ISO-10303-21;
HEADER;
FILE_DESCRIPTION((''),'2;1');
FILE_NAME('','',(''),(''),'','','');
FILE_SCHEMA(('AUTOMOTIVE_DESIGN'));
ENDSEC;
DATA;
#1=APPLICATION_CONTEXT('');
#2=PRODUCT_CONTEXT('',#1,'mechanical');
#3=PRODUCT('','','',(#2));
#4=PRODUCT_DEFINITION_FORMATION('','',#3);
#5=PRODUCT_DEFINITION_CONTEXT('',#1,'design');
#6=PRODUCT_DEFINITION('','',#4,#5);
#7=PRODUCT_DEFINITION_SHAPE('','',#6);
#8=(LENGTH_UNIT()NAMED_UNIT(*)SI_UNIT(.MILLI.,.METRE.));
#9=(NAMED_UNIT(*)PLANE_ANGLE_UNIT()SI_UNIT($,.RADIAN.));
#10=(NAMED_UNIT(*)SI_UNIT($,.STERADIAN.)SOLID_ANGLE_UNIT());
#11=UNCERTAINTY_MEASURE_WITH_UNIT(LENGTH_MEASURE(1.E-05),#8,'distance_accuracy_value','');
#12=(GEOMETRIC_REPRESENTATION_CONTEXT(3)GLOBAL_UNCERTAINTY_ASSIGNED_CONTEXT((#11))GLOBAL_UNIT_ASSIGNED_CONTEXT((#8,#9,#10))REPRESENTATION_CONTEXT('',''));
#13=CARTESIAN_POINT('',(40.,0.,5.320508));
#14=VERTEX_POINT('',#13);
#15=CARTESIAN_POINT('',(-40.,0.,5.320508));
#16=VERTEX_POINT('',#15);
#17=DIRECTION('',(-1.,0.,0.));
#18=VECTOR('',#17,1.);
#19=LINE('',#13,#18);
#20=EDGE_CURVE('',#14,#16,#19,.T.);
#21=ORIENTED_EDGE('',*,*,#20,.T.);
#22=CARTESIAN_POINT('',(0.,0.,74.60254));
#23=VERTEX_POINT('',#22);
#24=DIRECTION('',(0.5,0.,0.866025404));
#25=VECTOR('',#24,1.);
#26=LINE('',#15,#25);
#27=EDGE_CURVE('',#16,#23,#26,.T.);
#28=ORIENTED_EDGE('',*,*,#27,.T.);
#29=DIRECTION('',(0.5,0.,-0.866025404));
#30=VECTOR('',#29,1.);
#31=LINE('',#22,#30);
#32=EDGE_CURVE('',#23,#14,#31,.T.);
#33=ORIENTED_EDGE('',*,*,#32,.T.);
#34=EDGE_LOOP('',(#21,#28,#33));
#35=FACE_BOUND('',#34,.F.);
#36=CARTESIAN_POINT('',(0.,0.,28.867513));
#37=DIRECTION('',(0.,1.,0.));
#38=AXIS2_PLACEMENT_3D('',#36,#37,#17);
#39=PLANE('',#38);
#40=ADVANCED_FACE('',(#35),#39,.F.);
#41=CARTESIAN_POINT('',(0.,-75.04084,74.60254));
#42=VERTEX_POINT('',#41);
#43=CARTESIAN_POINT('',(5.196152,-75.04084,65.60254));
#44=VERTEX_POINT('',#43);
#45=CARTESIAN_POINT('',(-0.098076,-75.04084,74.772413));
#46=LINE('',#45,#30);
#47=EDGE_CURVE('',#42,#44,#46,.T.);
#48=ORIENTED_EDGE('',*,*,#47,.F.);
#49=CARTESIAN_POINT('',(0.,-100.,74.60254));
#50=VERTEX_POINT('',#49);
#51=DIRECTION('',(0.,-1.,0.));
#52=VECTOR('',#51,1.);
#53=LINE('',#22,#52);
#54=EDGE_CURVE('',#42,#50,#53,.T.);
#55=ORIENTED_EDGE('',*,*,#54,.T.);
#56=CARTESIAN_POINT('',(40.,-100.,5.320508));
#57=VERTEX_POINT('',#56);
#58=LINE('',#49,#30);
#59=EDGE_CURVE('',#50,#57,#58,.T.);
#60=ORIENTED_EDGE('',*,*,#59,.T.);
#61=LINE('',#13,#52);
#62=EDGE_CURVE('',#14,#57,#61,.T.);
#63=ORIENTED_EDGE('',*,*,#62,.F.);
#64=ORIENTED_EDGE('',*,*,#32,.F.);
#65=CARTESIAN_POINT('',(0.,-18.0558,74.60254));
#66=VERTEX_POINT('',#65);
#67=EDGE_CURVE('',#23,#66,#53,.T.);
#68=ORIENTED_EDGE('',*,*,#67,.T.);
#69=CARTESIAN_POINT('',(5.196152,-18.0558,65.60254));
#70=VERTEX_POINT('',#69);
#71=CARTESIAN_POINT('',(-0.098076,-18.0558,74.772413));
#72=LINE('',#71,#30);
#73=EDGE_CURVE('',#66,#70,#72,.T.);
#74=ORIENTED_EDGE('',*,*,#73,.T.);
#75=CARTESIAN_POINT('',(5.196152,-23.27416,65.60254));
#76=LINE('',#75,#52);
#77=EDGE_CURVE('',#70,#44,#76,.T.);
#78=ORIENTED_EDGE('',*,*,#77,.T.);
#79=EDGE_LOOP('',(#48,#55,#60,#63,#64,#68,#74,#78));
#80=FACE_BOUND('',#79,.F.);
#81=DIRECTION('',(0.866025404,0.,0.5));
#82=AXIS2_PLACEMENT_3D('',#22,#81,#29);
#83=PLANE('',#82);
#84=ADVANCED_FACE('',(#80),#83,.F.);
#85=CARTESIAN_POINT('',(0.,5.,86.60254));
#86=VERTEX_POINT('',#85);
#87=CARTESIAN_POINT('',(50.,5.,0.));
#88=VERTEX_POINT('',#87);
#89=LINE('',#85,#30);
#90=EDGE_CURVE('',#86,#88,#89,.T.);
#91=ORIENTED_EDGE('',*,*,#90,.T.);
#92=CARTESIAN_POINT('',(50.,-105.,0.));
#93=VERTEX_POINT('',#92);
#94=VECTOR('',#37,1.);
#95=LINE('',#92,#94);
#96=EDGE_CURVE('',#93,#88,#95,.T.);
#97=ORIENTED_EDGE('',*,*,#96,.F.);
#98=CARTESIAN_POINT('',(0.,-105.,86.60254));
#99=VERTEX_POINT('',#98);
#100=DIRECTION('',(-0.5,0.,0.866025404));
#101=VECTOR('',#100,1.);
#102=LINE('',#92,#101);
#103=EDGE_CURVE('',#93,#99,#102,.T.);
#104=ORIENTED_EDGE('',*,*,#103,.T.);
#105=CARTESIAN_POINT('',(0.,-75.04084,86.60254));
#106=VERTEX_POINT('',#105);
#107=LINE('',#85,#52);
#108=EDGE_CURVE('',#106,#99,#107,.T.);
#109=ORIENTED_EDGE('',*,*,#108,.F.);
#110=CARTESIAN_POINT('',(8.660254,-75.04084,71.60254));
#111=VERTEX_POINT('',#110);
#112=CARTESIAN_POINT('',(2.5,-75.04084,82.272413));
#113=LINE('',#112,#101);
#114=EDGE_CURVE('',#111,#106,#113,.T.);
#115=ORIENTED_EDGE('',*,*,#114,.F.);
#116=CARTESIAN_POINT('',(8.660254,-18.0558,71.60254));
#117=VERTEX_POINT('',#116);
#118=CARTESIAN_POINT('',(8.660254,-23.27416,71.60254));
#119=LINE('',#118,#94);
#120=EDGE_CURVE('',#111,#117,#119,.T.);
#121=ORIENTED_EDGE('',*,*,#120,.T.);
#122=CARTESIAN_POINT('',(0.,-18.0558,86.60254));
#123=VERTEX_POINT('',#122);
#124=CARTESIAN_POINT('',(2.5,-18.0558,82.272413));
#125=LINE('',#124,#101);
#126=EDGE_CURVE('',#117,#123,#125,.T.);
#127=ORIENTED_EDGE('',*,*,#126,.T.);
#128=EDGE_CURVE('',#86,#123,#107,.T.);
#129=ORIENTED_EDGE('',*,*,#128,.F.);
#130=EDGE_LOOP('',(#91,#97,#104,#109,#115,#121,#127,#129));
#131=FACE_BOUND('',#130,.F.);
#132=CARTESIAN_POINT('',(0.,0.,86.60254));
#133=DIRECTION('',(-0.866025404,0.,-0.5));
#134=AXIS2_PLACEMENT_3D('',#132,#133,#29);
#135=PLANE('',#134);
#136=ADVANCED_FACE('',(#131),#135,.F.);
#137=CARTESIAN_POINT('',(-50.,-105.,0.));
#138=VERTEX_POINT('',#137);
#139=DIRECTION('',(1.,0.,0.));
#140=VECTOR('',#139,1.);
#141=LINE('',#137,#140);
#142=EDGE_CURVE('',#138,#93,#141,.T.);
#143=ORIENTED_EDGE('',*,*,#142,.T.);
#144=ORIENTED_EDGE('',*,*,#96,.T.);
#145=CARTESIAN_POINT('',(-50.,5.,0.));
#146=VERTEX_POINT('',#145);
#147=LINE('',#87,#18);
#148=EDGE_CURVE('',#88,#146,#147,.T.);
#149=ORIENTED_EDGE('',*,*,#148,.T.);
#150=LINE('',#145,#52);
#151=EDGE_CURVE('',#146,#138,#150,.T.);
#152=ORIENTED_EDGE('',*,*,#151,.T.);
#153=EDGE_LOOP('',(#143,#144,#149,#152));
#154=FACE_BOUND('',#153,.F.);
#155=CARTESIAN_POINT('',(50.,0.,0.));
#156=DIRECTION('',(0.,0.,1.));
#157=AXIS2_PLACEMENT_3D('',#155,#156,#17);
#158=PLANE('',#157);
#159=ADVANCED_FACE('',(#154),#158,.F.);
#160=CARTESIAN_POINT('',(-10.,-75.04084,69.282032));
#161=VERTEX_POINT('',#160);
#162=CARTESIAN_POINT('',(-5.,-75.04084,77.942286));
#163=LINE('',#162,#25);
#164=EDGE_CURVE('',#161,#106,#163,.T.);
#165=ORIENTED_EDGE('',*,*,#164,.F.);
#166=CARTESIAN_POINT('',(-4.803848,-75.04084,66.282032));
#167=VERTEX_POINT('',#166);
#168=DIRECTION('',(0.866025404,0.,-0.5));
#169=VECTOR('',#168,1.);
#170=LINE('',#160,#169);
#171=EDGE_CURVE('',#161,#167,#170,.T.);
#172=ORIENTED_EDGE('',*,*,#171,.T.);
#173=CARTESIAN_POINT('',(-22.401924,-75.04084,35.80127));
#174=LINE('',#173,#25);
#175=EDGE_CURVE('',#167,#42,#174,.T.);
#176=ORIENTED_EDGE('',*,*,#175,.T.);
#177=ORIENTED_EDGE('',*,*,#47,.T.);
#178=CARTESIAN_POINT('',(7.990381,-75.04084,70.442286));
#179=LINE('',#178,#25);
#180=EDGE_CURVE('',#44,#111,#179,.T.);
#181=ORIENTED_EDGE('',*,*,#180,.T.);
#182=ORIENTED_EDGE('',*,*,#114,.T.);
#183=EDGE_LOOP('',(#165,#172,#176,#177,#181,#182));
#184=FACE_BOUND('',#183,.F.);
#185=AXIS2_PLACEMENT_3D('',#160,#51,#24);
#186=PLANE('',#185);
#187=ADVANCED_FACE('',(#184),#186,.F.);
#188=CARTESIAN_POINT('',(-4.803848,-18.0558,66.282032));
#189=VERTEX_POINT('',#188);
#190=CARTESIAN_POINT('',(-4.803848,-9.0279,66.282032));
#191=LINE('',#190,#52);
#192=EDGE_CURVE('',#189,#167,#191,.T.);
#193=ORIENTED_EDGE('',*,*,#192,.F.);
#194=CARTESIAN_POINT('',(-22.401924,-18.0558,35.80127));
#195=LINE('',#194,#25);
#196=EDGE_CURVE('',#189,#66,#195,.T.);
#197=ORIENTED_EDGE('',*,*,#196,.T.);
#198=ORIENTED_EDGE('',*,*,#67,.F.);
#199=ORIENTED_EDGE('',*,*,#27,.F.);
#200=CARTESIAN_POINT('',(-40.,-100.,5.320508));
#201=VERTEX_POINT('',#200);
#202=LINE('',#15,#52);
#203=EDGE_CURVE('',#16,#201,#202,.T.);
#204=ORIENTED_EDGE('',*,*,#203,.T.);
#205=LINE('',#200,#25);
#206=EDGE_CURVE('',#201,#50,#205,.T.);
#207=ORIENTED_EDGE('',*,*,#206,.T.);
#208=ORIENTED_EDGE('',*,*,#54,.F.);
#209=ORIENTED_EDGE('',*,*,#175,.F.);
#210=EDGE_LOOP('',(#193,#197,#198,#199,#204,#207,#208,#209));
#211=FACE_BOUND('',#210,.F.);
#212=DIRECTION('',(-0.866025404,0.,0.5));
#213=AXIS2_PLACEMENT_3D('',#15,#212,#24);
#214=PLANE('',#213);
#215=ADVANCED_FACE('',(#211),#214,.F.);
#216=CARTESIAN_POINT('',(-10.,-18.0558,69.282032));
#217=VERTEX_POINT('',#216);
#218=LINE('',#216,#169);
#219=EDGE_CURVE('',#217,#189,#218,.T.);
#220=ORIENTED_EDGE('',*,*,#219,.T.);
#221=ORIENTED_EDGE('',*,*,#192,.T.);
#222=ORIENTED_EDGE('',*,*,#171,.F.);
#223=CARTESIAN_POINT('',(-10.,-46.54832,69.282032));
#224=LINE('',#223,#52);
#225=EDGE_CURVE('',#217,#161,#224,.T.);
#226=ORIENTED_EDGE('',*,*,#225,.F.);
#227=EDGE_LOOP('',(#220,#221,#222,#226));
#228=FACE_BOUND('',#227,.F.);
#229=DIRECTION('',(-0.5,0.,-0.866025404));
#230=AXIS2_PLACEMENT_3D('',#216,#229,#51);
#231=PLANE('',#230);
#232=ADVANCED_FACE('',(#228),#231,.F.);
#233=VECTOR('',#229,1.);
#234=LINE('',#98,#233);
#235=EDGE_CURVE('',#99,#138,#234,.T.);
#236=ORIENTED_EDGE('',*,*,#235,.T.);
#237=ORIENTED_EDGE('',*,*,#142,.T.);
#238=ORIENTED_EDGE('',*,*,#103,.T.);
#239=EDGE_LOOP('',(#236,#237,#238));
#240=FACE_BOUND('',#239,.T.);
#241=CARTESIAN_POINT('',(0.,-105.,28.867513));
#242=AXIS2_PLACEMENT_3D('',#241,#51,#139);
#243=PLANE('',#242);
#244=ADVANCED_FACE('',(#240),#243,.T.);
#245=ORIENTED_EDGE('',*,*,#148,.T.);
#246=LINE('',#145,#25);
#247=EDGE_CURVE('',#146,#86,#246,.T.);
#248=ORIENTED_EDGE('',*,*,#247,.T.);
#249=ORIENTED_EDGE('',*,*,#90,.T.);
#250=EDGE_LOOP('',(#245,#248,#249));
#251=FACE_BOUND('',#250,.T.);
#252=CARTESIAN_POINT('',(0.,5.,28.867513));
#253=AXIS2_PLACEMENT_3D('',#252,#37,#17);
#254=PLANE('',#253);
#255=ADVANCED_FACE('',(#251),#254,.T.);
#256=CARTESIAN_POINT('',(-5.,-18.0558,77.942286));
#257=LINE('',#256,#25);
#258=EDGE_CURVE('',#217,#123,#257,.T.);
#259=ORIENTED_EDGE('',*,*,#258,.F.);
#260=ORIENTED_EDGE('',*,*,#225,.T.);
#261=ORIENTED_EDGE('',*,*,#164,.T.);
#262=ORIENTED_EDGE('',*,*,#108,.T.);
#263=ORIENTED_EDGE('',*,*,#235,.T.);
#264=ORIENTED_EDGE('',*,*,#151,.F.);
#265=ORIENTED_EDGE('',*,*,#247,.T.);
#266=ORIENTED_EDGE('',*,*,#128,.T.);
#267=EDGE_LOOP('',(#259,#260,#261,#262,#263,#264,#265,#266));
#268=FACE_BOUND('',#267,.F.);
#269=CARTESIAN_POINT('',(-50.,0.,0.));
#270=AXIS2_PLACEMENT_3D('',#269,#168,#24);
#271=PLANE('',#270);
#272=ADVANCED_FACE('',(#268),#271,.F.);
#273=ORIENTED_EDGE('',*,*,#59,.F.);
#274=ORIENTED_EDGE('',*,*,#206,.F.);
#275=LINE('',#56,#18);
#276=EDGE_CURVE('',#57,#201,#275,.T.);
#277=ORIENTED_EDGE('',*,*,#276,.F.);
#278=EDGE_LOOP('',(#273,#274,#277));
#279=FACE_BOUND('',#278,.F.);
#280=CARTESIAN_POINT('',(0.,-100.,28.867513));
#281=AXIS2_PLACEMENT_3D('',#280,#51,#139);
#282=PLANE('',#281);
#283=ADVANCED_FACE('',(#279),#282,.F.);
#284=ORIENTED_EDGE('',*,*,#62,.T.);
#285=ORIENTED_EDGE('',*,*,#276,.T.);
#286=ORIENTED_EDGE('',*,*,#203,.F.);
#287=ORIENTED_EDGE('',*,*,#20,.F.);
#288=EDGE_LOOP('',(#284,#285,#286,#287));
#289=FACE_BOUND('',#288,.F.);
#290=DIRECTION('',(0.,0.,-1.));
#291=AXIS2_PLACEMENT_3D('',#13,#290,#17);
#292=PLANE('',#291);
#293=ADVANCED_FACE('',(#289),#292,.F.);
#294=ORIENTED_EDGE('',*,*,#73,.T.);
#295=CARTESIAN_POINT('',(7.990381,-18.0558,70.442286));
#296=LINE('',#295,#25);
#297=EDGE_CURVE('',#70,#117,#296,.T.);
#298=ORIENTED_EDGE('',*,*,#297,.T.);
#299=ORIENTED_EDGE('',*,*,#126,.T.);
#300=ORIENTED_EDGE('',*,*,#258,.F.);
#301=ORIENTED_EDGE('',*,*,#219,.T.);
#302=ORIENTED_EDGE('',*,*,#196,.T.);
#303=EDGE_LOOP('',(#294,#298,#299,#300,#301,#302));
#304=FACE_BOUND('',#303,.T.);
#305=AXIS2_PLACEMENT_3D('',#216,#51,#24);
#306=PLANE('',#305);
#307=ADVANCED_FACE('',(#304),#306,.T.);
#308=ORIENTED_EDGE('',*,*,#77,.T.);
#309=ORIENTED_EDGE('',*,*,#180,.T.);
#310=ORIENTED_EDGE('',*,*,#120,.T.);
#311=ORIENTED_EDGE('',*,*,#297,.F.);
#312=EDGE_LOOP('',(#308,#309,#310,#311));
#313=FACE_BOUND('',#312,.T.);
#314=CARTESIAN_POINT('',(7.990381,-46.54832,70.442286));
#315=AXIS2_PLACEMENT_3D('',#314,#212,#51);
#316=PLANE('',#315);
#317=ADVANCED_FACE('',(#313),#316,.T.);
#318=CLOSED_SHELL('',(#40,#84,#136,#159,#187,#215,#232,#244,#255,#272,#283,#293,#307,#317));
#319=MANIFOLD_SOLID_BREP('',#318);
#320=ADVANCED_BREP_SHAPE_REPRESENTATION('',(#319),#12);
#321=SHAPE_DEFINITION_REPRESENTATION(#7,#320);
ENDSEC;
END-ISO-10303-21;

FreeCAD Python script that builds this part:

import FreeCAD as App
import Part
import Sketcher
from FreeCAD import Vector
Q = App.Units.Quantity


def add_polygon(sketch, points):
    """Adds a closed chain of lines whose ends are joined by coincident constraints."""
    first, n = sketch.GeometryCount, len(points)
    for a, b in zip(points, points[1:] + points[:1]):
        sketch.addGeometry(Part.LineSegment(App.Vector(*a, 0), App.Vector(*b, 0)), False)
    for i in range(n):
        sketch.addConstraint(Sketcher.Constraint("Coincident", first + i, 2, first + (i + 1) % n, 1))

doc = App.newDocument("Part")
body = doc.addObject("PartDesign::Body", "Body")

sketch1 = doc.addObject("Sketcher::SketchObject", "Sketch")
body.addObject(sketch1)
sketch1.AttachmentSupport = (doc.XZ_Plane, [""])
sketch1.MapMode = "FlatFace"
add_polygon(sketch1, [(0, 87), (-50, 0), (50, 0)])
add_polygon(sketch1, [(0, 75), (40, 5), (-40, 5)])
sketch1.addConstraint([
    Sketcher.Constraint("Horizontal", 1),
    Sketcher.Constraint("Horizontal", 4),
    Sketcher.Constraint("Symmetric", 0, 2, 1, 2, -1, 1),
    Sketcher.Constraint("PointOnObject", 2, 2, -2),
    Sketcher.Constraint("PointOnObject", 5, 2, -2),
    Sketcher.Constraint("Parallel", 2, 3),
    Sketcher.Constraint("Parallel", 0, 5),
    Sketcher.Constraint("DistanceX", 1, 1, 1, 2, Q("100 mm")),
    Sketcher.Constraint("DistanceX", 4, 2, 4, 1, Q("80 mm")),
    Sketcher.Constraint("Angle", 0, Q("-120 deg")),
    Sketcher.Constraint("DistanceY", 5, 2, 2, 2, Q("12 mm")),
])
pad1 = doc.addObject("PartDesign::Pad", "Pad")
body.addObject(pad1)
pad1.Profile = sketch1
pad1.Length = 100

sketch2 = doc.addObject("Sketcher::SketchObject", "Sketch001")
body.addObject(sketch2)
sketch2.AttachmentSupport = (doc.XZ_Plane, [""])
sketch2.MapMode = "FlatFace"
sketch2.AttachmentOffset = App.Placement(Vector(0, 0, 100), App.Rotation())
add_polygon(sketch2, [(-50, 0), (50, 0), (0, 87)])
sketch2.addConstraint([
    Sketcher.Constraint("Horizontal", 0),
    Sketcher.Constraint("Symmetric", 0, 2, 2, 2, -1, 1),
    Sketcher.Constraint("PointOnObject", 1, 2, -2),
    Sketcher.Constraint("DistanceX", 0, 1, 0, 2, Q("100 mm")),
    Sketcher.Constraint("Angle", 1, Q("120 deg")),
])
pad2 = doc.addObject("PartDesign::Pad", "Pad001")
body.addObject(pad2)
pad2.Profile = sketch2
pad2.Length = 5

sketch3 = doc.addObject("Sketcher::SketchObject", "Sketch002")
body.addObject(sketch3)
sketch3.AttachmentSupport = (doc.XZ_Plane, [""])
sketch3.MapMode = "FlatFace"
add_polygon(sketch3, [(0, 87), (50, 0), (-50, 0)])
sketch3.addConstraint([
    Sketcher.Constraint("Horizontal", 1),
    Sketcher.Constraint("Symmetric", 0, 2, 1, 2, -1, 1),
    Sketcher.Constraint("PointOnObject", 2, 2, -2),
    Sketcher.Constraint("DistanceX", 1, 2, 1, 1, Q("100 mm")),
    Sketcher.Constraint("Angle", 0, Q("-60 deg")),
])
pad3 = doc.addObject("PartDesign::Pad", "Pad002")
body.addObject(pad3)
pad3.Profile = sketch3
pad3.Length = 5
pad3.Reversed = True

sketch4 = doc.addObject("Sketcher::SketchObject", "Sketch003")
body.addObject(sketch4)
sketch4.Placement = App.Placement(Vector(-37.5, 0, 21.650635), App.Rotation(Vector(0, -1, 0), Vector(0.5, 0, 0.866025404), Vector(-0.866025404, 0, 0.5), "ZXY"))
add_polygon(sketch4, [(18, 75), (18, 55), (75, 55), (75, 75)])
sketch4.addConstraint([
    Sketcher.Constraint("Vertical", 0),
    Sketcher.Constraint("Horizontal", 1),
    Sketcher.Constraint("Vertical", 2),
    Sketcher.Constraint("Horizontal", 3),
    Sketcher.Constraint("DistanceY", 0, 2, 0, 1, Q("20 mm")),
    Sketcher.Constraint("DistanceY", -1, 1, 0, 2, Q("55 mm")),
    Sketcher.Constraint("DistanceX", 1, 1, 1, 2, Q("56.985039 mm")),
    Sketcher.Constraint("DistanceX", -1, 1, 0, 2, Q("18.0558 mm")),
])
pocket1 = doc.addObject("PartDesign::Pocket", "Pocket")
body.addObject(pocket1)
pocket1.Profile = sketch4
pocket1.Length = 15

doc.recompute()
